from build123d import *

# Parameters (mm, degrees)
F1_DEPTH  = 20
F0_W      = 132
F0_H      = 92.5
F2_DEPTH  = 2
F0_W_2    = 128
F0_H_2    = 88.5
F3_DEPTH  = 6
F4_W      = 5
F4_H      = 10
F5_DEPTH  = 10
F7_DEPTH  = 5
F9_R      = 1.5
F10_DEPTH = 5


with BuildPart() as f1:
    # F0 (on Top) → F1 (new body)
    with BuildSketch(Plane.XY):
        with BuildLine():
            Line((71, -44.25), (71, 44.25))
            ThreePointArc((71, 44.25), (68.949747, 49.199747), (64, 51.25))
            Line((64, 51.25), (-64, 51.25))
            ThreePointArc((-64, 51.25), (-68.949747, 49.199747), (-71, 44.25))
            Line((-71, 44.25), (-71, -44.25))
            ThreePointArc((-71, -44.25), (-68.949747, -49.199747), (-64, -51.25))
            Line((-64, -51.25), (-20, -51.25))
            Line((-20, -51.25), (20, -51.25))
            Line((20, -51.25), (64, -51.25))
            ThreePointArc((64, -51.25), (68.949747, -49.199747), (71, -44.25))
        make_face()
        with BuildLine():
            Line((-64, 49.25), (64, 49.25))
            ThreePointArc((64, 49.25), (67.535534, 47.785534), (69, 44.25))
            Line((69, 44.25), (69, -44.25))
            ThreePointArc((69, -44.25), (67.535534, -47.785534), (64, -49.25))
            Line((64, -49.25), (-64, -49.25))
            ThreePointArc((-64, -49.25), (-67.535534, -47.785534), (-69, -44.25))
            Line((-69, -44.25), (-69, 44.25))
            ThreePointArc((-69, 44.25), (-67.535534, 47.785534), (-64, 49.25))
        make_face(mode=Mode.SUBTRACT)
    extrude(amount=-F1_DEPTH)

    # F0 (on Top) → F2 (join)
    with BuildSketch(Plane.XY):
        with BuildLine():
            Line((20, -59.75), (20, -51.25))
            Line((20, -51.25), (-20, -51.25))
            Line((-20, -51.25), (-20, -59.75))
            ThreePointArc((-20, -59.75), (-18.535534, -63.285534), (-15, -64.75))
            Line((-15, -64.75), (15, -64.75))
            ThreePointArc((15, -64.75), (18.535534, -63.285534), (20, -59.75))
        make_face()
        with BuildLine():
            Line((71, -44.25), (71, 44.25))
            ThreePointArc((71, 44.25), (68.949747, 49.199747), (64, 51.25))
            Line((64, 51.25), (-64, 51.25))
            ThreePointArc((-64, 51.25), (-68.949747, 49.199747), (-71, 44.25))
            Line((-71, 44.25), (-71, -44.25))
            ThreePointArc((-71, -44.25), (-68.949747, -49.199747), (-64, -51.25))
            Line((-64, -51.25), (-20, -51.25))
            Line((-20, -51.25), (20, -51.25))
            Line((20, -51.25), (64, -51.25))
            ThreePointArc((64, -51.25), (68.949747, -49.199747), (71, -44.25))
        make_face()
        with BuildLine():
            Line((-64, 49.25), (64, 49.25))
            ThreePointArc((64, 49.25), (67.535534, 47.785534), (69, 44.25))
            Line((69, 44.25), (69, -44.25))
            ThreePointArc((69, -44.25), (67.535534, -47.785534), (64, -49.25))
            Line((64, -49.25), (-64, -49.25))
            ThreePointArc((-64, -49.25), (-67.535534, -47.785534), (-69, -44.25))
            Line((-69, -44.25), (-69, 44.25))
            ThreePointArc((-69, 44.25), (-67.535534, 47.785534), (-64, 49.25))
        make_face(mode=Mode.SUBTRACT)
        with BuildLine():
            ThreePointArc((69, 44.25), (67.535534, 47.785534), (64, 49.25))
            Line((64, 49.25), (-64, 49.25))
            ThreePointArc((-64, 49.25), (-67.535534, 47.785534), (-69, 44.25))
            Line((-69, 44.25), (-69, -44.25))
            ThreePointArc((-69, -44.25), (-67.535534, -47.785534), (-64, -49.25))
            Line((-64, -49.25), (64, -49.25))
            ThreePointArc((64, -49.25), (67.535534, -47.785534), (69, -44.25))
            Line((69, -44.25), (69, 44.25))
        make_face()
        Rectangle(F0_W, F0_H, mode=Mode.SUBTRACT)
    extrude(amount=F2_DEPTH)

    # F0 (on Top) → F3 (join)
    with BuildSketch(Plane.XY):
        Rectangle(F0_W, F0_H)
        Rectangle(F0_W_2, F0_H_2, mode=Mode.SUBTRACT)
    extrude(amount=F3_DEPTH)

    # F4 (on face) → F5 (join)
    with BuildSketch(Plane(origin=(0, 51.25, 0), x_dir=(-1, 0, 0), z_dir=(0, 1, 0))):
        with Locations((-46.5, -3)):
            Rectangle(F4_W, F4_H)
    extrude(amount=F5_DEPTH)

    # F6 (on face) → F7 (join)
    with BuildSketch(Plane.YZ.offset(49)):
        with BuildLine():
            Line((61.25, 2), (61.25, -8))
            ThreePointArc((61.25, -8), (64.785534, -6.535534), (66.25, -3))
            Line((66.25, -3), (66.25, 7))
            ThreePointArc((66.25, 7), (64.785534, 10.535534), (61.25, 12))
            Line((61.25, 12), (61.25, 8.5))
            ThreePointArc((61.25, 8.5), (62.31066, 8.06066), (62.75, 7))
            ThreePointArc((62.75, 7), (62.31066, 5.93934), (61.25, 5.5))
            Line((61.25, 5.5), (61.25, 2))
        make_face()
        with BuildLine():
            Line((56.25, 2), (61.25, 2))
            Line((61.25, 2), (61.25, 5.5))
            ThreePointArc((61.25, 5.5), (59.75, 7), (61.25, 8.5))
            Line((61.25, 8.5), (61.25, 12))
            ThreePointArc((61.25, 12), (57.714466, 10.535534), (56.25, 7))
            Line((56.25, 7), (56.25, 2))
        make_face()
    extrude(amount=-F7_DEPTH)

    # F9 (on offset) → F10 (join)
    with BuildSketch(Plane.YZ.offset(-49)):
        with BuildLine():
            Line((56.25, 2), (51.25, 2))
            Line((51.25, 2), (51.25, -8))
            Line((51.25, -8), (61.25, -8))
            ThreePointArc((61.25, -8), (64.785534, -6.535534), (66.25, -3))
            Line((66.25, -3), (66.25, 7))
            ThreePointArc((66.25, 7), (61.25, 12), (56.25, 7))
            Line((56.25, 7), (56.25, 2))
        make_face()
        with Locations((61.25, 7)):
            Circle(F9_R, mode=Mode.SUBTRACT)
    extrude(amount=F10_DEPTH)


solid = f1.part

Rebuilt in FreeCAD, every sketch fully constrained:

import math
import FreeCAD as App
import Part
import Sketcher
from FreeCAD import Vector
Q = App.Units.Quantity

doc = App.newDocument("Part")
body = doc.addObject("PartDesign::Body", "Body")

sketch1 = doc.addObject("Sketcher::SketchObject", "Sketch")
body.addObject(sketch1)
sketch1.AttachmentSupport = (doc.XY_Plane, [""])
sketch1.MapMode = "FlatFace"
sketch1.addGeometry([
    Part.LineSegment(Vector(71, -44.25, 0), Vector(71, 44.25, 0)),
    Part.ArcOfCircle(Part.Circle(Vector(63.999998, 44.249998, 0), Vector(0, 0, 1), 7.000002), math.radians(0.000013), math.radians(89.999987)),
    Part.LineSegment(Vector(64, 51.25, 0), Vector(-64, 51.25, 0)),
    Part.ArcOfCircle(Part.Circle(Vector(-63.999998, 44.249998, 0), Vector(0, 0, 1), 7.000002), math.radians(90.000013), math.radians(179.999987)),
    Part.LineSegment(Vector(-71, 44.25, 0), Vector(-71, -44.25, 0)),
    Part.ArcOfCircle(Part.Circle(Vector(-63.999998, -44.249998, 0), Vector(0, 0, 1), 7.000002), math.radians(-179.999987), math.radians(-90.000013)),
    Part.LineSegment(Vector(-64, -51.25, 0), Vector(64, -51.25, 0)),
    Part.ArcOfCircle(Part.Circle(Vector(63.999998, -44.249998, 0), Vector(0, 0, 1), 7.000002), math.radians(-89.999987), math.radians(-0.000013)),
    Part.ArcOfCircle(Part.Circle(Vector(-64, 44.25, 0), Vector(0, 0, 1), 5), math.radians(89.999996), math.radians(180.000004)),
    Part.LineSegment(Vector(-64, 49.25, 0), Vector(64, 49.25, 0)),
    Part.ArcOfCircle(Part.Circle(Vector(64, 44.25, 0), Vector(0, 0, 1), 5), math.radians(-0.000004), math.radians(90.000004)),
    Part.LineSegment(Vector(69, 44.25, 0), Vector(69, -44.25, 0)),
    Part.ArcOfCircle(Part.Circle(Vector(64, -44.25, 0), Vector(0, 0, 1), 5), math.radians(-90.000004), math.radians(0.000004)),
    Part.LineSegment(Vector(64, -49.25, 0), Vector(-64, -49.25, 0)),
    Part.ArcOfCircle(Part.Circle(Vector(-64, -44.25, 0), Vector(0, 0, 1), 5), math.radians(179.999996), math.radians(270.000004)),
    Part.LineSegment(Vector(-69, -44.25, 0), Vector(-69, 44.25, 0)),
], False)
sketch1.addConstraint([
    Sketcher.Constraint("Tangent", 0, 2, 1, 1),
    Sketcher.Constraint("Tangent", 1, 2, 2, 1),
    Sketcher.Constraint("Tangent", 2, 2, 3, 1),
    Sketcher.Constraint("Tangent", 3, 2, 4, 1),
    Sketcher.Constraint("Tangent", 4, 2, 5, 1),
    Sketcher.Constraint("Tangent", 5, 2, 6, 1),
    Sketcher.Constraint("Tangent", 6, 2, 7, 1),
    Sketcher.Constraint("Tangent", 7, 2, 0, 1),
    Sketcher.Constraint("Tangent", 8, 1, 9, 1),
    Sketcher.Constraint("Tangent", 9, 2, 10, 2),
    Sketcher.Constraint("Tangent", 10, 1, 11, 1),
    Sketcher.Constraint("Tangent", 11, 2, 12, 2),
    Sketcher.Constraint("Tangent", 12, 1, 13, 1),
    Sketcher.Constraint("Tangent", 13, 2, 14, 2),
    Sketcher.Constraint("Tangent", 14, 1, 15, 1),
    Sketcher.Constraint("Tangent", 15, 2, 8, 2),
    Sketcher.Constraint("Vertical", 0),
    Sketcher.Constraint("Horizontal", 2),
    Sketcher.Constraint("Vertical", 4),
    Sketcher.Constraint("Horizontal", 6),
    Sketcher.Constraint("Horizontal", 9),
    Sketcher.Constraint("Vertical", 11),
    Sketcher.Constraint("Horizontal", 13),
    Sketcher.Constraint("Vertical", 15),
    Sketcher.Constraint("Coincident", 8, 3, 3, 3),
    Sketcher.Constraint("Coincident", 10, 3, 1, 3),
    Sketcher.Constraint("Coincident", 12, 3, 7, 3),
    Sketcher.Constraint("Equal", 1, 3),
    Sketcher.Constraint("Equal", 3, 5),
    Sketcher.Constraint("Equal", 5, 7),
    Sketcher.Constraint("Equal", 12, 14),
    Sketcher.Constraint("Symmetric", 1, 3, 5, 3, -1, 1),
    Sketcher.Constraint("Radius", 1, Q("7.000002 mm")),
    Sketcher.Constraint("Radius", 8, Q("5 mm")),
    Sketcher.Constraint("DistanceX", 2, 2, 2, 1, Q("128 mm")),
    Sketcher.Constraint("DistanceY", 0, 1, 0, 2, Q("88.5 mm")),
])
pad1 = doc.addObject("PartDesign::Pad", "Pad")
body.addObject(pad1)
pad1.Profile = sketch1
pad1.Length = 20
pad1.Reversed = True

sketch2 = doc.addObject("Sketcher::SketchObject", "Sketch001")
body.addObject(sketch2)
sketch2.AttachmentSupport = (doc.XY_Plane, [""])
sketch2.MapMode = "FlatFace"
sketch2.addGeometry([
    Part.LineSegment(Vector(20, -59.75, 0), Vector(20, -51.25, 0)),
    Part.LineSegment(Vector(20, -51.25, 0), Vector(64, -51.25, 0)),
    Part.ArcOfCircle(Part.Circle(Vector(63.999998, -44.249998, 0), Vector(0, 0, 1), 7.000002), math.radians(-89.999987), math.radians(-0.000013)),
    Part.LineSegment(Vector(71, -44.25, 0), Vector(71, 44.25, 0)),
    Part.ArcOfCircle(Part.Circle(Vector(63.999998, 44.249998, 0), Vector(0, 0, 1), 7.000002), math.radians(0.000013), math.radians(89.999987)),
    Part.LineSegment(Vector(64, 51.25, 0), Vector(-64, 51.25, 0)),
    Part.ArcOfCircle(Part.Circle(Vector(-63.999998, 44.249998, 0), Vector(0, 0, 1), 7.000002), math.radians(90.000013), math.radians(179.999987)),
    Part.LineSegment(Vector(-71, 44.25, 0), Vector(-71, -44.25, 0)),
    Part.ArcOfCircle(Part.Circle(Vector(-63.999998, -44.249998, 0), Vector(0, 0, 1), 7.000002), math.radians(-179.999987), math.radians(-90.000013)),
    Part.LineSegment(Vector(-64, -51.25, 0), Vector(-20, -51.25, 0)),
    Part.LineSegment(Vector(-20, -51.25, 0), Vector(-20, -59.75, 0)),
    Part.ArcOfCircle(Part.Circle(Vector(-15, -59.75, 0), Vector(0, 0, 1), 5), math.radians(179.999996), math.radians(270.000004)),
    Part.LineSegment(Vector(-15, -64.75, 0), Vector(15, -64.75, 0)),
    Part.ArcOfCircle(Part.Circle(Vector(15, -59.75, 0), Vector(0, 0, 1), 5), math.radians(-90.000004), math.radians(0.000004)),
    Part.LineSegment(Vector(66, -46.25, 0), Vector(-66, -46.25, 0)),
    Part.LineSegment(Vector(-66, -46.25, 0), Vector(-66, 46.25, 0)),
    Part.LineSegment(Vector(-66, 46.25, 0), Vector(66, 46.25, 0)),
    Part.LineSegment(Vector(66, 46.25, 0), Vector(66, -46.25, 0)),
], False)
sketch2.addConstraint([
    Sketcher.Constraint("Coincident", 0, 2, 1, 1),
    Sketcher.Constraint("Tangent", 1, 2, 2, 1),
    Sketcher.Constraint("Tangent", 2, 2, 3, 1),
    Sketcher.Constraint("Tangent", 3, 2, 4, 1),
    Sketcher.Constraint("Tangent", 4, 2, 5, 1),
    Sketcher.Constraint("Tangent", 5, 2, 6, 1),
    Sketcher.Constraint("Tangent", 6, 2, 7, 1),
    Sketcher.Constraint("Tangent", 7, 2, 8, 1),
    Sketcher.Constraint("Tangent", 8, 2, 9, 1),
    Sketcher.Constraint("Coincident", 9, 2, 10, 1),
    Sketcher.Constraint("Tangent", 10, 2, 11, 1),
    Sketcher.Constraint("Tangent", 11, 2, 12, 1),
    Sketcher.Constraint("Tangent", 12, 2, 13, 1),
    Sketcher.Constraint("Tangent", 13, 2, 0, 1),
    Sketcher.Constraint("Coincident", 14, 2, 15, 1),
    Sketcher.Constraint("Coincident", 15, 2, 16, 1),
    Sketcher.Constraint("Coincident", 16, 2, 17, 1),
    Sketcher.Constraint("Coincident", 17, 2, 14, 1),
    Sketcher.Constraint("Vertical", 0),
    Sketcher.Constraint("Horizontal", 1),
    Sketcher.Constraint("Vertical", 3),
    Sketcher.Constraint("Horizontal", 5),
    Sketcher.Constraint("Vertical", 7),
    Sketcher.Constraint("Horizontal", 9),
    Sketcher.Constraint("Vertical", 10),
    Sketcher.Constraint("Horizontal", 12),
    Sketcher.Constraint("Horizontal", 14),
    Sketcher.Constraint("Vertical", 15),
    Sketcher.Constraint("Horizontal", 16),
    Sketcher.Constraint("Vertical", 17),
    Sketcher.Constraint("Equal", 2, 4),
    Sketcher.Constraint("Equal", 4, 6),
    Sketcher.Constraint("Equal", 6, 8),
    Sketcher.Constraint("Equal", 11, 13),
    Sketcher.Constraint("Symmetric", 2, 3, 6, 3, -1, 1),
    Sketcher.Constraint("Symmetric", 14, 2, 16, 2, -1, 1),
    Sketcher.Constraint("Symmetric", 0, 2, 9, 2, -2),
    Sketcher.Constraint("Radius", 2, Q("7.000002 mm")),
    Sketcher.Constraint("Radius", 11, Q("5 mm")),
    Sketcher.Constraint("DistanceX", 1, 1, 1, 2, Q("44 mm")),
    Sketcher.Constraint("DistanceX", 5, 2, 5, 1, Q("128 mm")),
    Sketcher.Constraint("DistanceX", 14, 2, 14, 1, Q("132 mm")),
    Sketcher.Constraint("DistanceY", 0, 1, 0, 2, Q("8.5 mm")),
    Sketcher.Constraint("DistanceY", 3, 1, 3, 2, Q("88.5 mm")),
    Sketcher.Constraint("DistanceY", 15, 1, 15, 2, Q("92.5 mm")),
])
pad2 = doc.addObject("PartDesign::Pad", "Pad001")
body.addObject(pad2)
pad2.Profile = sketch2
pad2.Length = 2

sketch3 = doc.addObject("Sketcher::SketchObject", "Sketch002")
body.addObject(sketch3)
sketch3.AttachmentSupport = (doc.XY_Plane, [""])
sketch3.MapMode = "FlatFace"
sketch3.addGeometry([
    Part.LineSegment(Vector(-66, 46.25, 0), Vector(-66, -46.25, 0)),
    Part.LineSegment(Vector(-66, -46.25, 0), Vector(66, -46.25, 0)),
    Part.LineSegment(Vector(66, -46.25, 0), Vector(66, 46.25, 0)),
    Part.LineSegment(Vector(66, 46.25, 0), Vector(-66, 46.25, 0)),
    Part.LineSegment(Vector(64, -44.25, 0), Vector(-64, -44.25, 0)),
    Part.LineSegment(Vector(-64, -44.25, 0), Vector(-64, 44.25, 0)),
    Part.LineSegment(Vector(-64, 44.25, 0), Vector(64, 44.25, 0)),
    Part.LineSegment(Vector(64, 44.25, 0), Vector(64, -44.25, 0)),
], False)
sketch3.addConstraint([
    Sketcher.Constraint("Coincident", 0, 2, 1, 1),
    Sketcher.Constraint("Coincident", 1, 2, 2, 1),
    Sketcher.Constraint("Coincident", 2, 2, 3, 1),
    Sketcher.Constraint("Coincident", 3, 2, 0, 1),
    Sketcher.Constraint("Coincident", 4, 2, 5, 1),
    Sketcher.Constraint("Coincident", 5, 2, 6, 1),
    Sketcher.Constraint("Coincident", 6, 2, 7, 1),
    Sketcher.Constraint("Coincident", 7, 2, 4, 1),
    Sketcher.Constraint("Vertical", 0),
    Sketcher.Constraint("Horizontal", 1),
    Sketcher.Constraint("Vertical", 2),
    Sketcher.Constraint("Horizontal", 3),
    Sketcher.Constraint("Horizontal", 4),
    Sketcher.Constraint("Vertical", 5),
    Sketcher.Constraint("Horizontal", 6),
    Sketcher.Constraint("Vertical", 7),
    Sketcher.Constraint("Symmetric", 0, 2, 2, 2, -1, 1),
    Sketcher.Constraint("Symmetric", 4, 2, 6, 2, -1, 1),
    Sketcher.Constraint("DistanceX", 1, 1, 1, 2, Q("132 mm")),
    Sketcher.Constraint("DistanceX", 4, 2, 4, 1, Q("128 mm")),
    Sketcher.Constraint("DistanceY", 0, 2, 0, 1, Q("92.5 mm")),
    Sketcher.Constraint("DistanceY", 5, 1, 5, 2, Q("88.5 mm")),
])
pad3 = doc.addObject("PartDesign::Pad", "Pad002")
body.addObject(pad3)
pad3.Profile = sketch3
pad3.Length = 6

sketch4 = doc.addObject("Sketcher::SketchObject", "Sketch003")
body.addObject(sketch4)
sketch4.AttachmentSupport = (doc.XZ_Plane, [""])
sketch4.MapMode = "FlatFace"
sketch4.AttachmentOffset = App.Placement(Vector(0, 0, -51.25), App.Rotation())
sketch4.addGeometry([
    Part.LineSegment(Vector(49, 2, 0), Vector(49, -8, 0)),
    Part.LineSegment(Vector(49, -8, 0), Vector(44, -8, 0)),
    Part.LineSegment(Vector(44, -8, 0), Vector(44, 2, 0)),
    Part.LineSegment(Vector(44, 2, 0), Vector(49, 2, 0)),
], False)
sketch4.addConstraint([
    Sketcher.Constraint("Coincident", 0, 2, 1, 1),
    Sketcher.Constraint("Coincident", 1, 2, 2, 1),
    Sketcher.Constraint("Coincident", 2, 2, 3, 1),
    Sketcher.Constraint("Coincident", 3, 2, 0, 1),
    Sketcher.Constraint("Vertical", 0),
    Sketcher.Constraint("Horizontal", 1),
    Sketcher.Constraint("Vertical", 2),
    Sketcher.Constraint("Horizontal", 3),
    Sketcher.Constraint("DistanceX", 1, 2, 1, 1, Q("5 mm")),
    Sketcher.Constraint("DistanceY", 0, 2, 0, 1, Q("10 mm")),
    Sketcher.Constraint("DistanceX", -1, 1, 0, 2, Q("49 mm")),
    Sketcher.Constraint("DistanceY", 0, 2, -1, 1, Q("8 mm")),
])
pad4 = doc.addObject("PartDesign::Pad", "Pad003")
body.addObject(pad4)
pad4.Profile = sketch4
pad4.Length = 10
pad4.Reversed = True

sketch5 = doc.addObject("Sketcher::SketchObject", "Sketch004")
body.addObject(sketch5)
sketch5.AttachmentSupport = (doc.YZ_Plane, [""])
sketch5.MapMode = "FlatFace"
sketch5.AttachmentOffset = App.Placement(Vector(0, 0, 49), App.Rotation())
sketch5.addGeometry([
    Part.ArcOfCircle(Part.Circle(Vector(61.25, -3, 0), Vector(0, 0, 1), 5), math.radians(-90.000004), math.radians(0.000004)),
    Part.LineSegment(Vector(66.25, -3, 0), Vector(66.25, 7, 0)),
    Part.ArcOfCircle(Part.Circle(Vector(61.25, 7, 0), Vector(0, 0, 1), 5), math.radians(-0.000004), math.radians(90.000004)),
    Part.ArcOfCircle(Part.Circle(Vector(61.25, 7, 0), Vector(0, 0, 1), 5), math.radians(89.999996), math.radians(180.000004)),
    Part.LineSegment(Vector(56.25, 7, 0), Vector(56.25, 2, 0)),
    Part.LineSegment(Vector(56.25, 2, 0), Vector(61.25, 2, 0)),
    Part.LineSegment(Vector(61.25, 2, 0), Vector(61.25, -8, 0)),
    Part.ArcOfCircle(Part.Circle(Vector(61.249999, 6.999999, 0), Vector(0, 0, 1), 1.500001), math.radians(0.000022), math.radians(89.999978)),
    Part.ArcOfCircle(Part.Circle(Vector(61.249999, 7.000001, 0), Vector(0, 0, 1), 1.500001), math.radians(-89.999978), math.radians(-0.000022)),
    Part.ArcOfCircle(Part.Circle(Vector(61.25, 7, 0), Vector(0, 0, 1), 1.5), math.radians(90), math.radians(270)),
], False)
sketch5.addConstraint([
    Sketcher.Constraint("Tangent", 0, 2, 1, 1),
    Sketcher.Constraint("Tangent", 1, 2, 2, 1),
    Sketcher.Constraint("Tangent", 2, 2, 3, 1),
    Sketcher.Constraint("Tangent", 3, 2, 4, 1),
    Sketcher.Constraint("Coincident", 4, 2, 5, 1),
    Sketcher.Constraint("Coincident", 5, 2, 6, 1),
    Sketcher.Constraint("Coincident", 6, 2, 0, 1),
    Sketcher.Constraint("Tangent", 7, 1, 8, 2),
    Sketcher.Constraint("Tangent", 8, 1, 9, 2),
    Sketcher.Constraint("Tangent", 9, 1, 7, 2),
    Sketcher.Constraint("Vertical", 1),
    Sketcher.Constraint("Vertical", 4),
    Sketcher.Constraint("Horizontal", 5),
    Sketcher.Constraint("Vertical", 6),
    Sketcher.Constraint("Coincident", 7, 3, 2, 3),
    Sketcher.Constraint("Equal", 0, 2),
    Sketcher.Constraint("Equal", 2, 3),
    Sketcher.Constraint("Horizontal", 3, 2, 7, 1),
    Sketcher.Constraint("Vertical", 9, 3, 2, 2),
    Sketcher.Constraint("Vertical", 2, 2, 5, 2),
    Sketcher.Constraint("Vertical", 6, 2, 8, 1),
    Sketcher.Constraint("Vertical", 8, 1, 9, 1),
    Sketcher.Constraint("Equal", 5, 4),
    Sketcher.Constraint("Radius", 0, Q("5 mm")),
    Sketcher.Constraint("Radius", 7, Q("1.500001 mm")),
    Sketcher.Constraint("DistanceY", 1, 1, 1, 2, Q("10 mm")),
    Sketcher.Constraint("DistanceY", 0, 3, -1, 1, Q("3 mm")),
    Sketcher.Constraint("DistanceX", -1, 1, 0, 3, Q("61.25 mm")),
])
pad5 = doc.addObject("PartDesign::Pad", "Pad004")
body.addObject(pad5)
pad5.Profile = sketch5
pad5.Length = 5
pad5.Reversed = True

sketch6 = doc.addObject("Sketcher::SketchObject", "Sketch005")
body.addObject(sketch6)
sketch6.AttachmentSupport = (doc.YZ_Plane, [""])
sketch6.MapMode = "FlatFace"
sketch6.AttachmentOffset = App.Placement(Vector(0, 0, -49), App.Rotation())
sketch6.addGeometry([
    Part.LineSegment(Vector(56.25, 2, 0), Vector(51.25, 2, 0)),
    Part.LineSegment(Vector(51.25, 2, 0), Vector(51.25, -8, 0)),
    Part.LineSegment(Vector(51.25, -8, 0), Vector(61.25, -8, 0)),
    Part.ArcOfCircle(Part.Circle(Vector(61.25, -3, 0), Vector(0, 0, 1), 5), math.radians(-90.000004), math.radians(0.000004)),
    Part.LineSegment(Vector(66.25, -3, 0), Vector(66.25, 7, 0)),
    Part.ArcOfCircle(Part.Circle(Vector(61.25, 7, 0), Vector(0, 0, 1), 5), math.radians(0), math.radians(180)),
    Part.LineSegment(Vector(56.25, 7, 0), Vector(56.25, 2, 0)),
    Part.Circle(Vector(61.25, 7, 0), Vector(0, 0, 1), 1.5),
], False)
sketch6.addConstraint([
    Sketcher.Constraint("Coincident", 0, 2, 1, 1),
    Sketcher.Constraint("Coincident", 1, 2, 2, 1),
    Sketcher.Constraint("Tangent", 2, 2, 3, 1),
    Sketcher.Constraint("Tangent", 3, 2, 4, 1),
    Sketcher.Constraint("Tangent", 4, 2, 5, 1),
    Sketcher.Constraint("Tangent", 5, 2, 6, 1),
    Sketcher.Constraint("Coincident", 6, 2, 0, 1),
    Sketcher.Constraint("Horizontal", 0),
    Sketcher.Constraint("Vertical", 1),
    Sketcher.Constraint("Horizontal", 2),
    Sketcher.Constraint("Vertical", 4),
    Sketcher.Constraint("Vertical", 6),
    Sketcher.Constraint("Coincident", 7, 3, 5, 3),
    Sketcher.Constraint("Equal", 3, 5),
    Sketcher.Constraint("Equal", 2, 1),
    Sketcher.Constraint("Equal", 1, 4),
    Sketcher.Constraint("Equal", 0, 6),
    Sketcher.Constraint("Diameter", 7, Q("3 mm")),
    Sketcher.Constraint("Radius", 3, Q("5 mm")),
    Sketcher.Constraint("DistanceY", 3, 3, -1, 1, Q("3 mm")),
    Sketcher.Constraint("DistanceX", -1, 1, 3, 3, Q("61.25 mm")),
])
pad6 = doc.addObject("PartDesign::Pad", "Pad005")
body.addObject(pad6)
pad6.Profile = sketch6
pad6.Length = 5

doc.recompute()
